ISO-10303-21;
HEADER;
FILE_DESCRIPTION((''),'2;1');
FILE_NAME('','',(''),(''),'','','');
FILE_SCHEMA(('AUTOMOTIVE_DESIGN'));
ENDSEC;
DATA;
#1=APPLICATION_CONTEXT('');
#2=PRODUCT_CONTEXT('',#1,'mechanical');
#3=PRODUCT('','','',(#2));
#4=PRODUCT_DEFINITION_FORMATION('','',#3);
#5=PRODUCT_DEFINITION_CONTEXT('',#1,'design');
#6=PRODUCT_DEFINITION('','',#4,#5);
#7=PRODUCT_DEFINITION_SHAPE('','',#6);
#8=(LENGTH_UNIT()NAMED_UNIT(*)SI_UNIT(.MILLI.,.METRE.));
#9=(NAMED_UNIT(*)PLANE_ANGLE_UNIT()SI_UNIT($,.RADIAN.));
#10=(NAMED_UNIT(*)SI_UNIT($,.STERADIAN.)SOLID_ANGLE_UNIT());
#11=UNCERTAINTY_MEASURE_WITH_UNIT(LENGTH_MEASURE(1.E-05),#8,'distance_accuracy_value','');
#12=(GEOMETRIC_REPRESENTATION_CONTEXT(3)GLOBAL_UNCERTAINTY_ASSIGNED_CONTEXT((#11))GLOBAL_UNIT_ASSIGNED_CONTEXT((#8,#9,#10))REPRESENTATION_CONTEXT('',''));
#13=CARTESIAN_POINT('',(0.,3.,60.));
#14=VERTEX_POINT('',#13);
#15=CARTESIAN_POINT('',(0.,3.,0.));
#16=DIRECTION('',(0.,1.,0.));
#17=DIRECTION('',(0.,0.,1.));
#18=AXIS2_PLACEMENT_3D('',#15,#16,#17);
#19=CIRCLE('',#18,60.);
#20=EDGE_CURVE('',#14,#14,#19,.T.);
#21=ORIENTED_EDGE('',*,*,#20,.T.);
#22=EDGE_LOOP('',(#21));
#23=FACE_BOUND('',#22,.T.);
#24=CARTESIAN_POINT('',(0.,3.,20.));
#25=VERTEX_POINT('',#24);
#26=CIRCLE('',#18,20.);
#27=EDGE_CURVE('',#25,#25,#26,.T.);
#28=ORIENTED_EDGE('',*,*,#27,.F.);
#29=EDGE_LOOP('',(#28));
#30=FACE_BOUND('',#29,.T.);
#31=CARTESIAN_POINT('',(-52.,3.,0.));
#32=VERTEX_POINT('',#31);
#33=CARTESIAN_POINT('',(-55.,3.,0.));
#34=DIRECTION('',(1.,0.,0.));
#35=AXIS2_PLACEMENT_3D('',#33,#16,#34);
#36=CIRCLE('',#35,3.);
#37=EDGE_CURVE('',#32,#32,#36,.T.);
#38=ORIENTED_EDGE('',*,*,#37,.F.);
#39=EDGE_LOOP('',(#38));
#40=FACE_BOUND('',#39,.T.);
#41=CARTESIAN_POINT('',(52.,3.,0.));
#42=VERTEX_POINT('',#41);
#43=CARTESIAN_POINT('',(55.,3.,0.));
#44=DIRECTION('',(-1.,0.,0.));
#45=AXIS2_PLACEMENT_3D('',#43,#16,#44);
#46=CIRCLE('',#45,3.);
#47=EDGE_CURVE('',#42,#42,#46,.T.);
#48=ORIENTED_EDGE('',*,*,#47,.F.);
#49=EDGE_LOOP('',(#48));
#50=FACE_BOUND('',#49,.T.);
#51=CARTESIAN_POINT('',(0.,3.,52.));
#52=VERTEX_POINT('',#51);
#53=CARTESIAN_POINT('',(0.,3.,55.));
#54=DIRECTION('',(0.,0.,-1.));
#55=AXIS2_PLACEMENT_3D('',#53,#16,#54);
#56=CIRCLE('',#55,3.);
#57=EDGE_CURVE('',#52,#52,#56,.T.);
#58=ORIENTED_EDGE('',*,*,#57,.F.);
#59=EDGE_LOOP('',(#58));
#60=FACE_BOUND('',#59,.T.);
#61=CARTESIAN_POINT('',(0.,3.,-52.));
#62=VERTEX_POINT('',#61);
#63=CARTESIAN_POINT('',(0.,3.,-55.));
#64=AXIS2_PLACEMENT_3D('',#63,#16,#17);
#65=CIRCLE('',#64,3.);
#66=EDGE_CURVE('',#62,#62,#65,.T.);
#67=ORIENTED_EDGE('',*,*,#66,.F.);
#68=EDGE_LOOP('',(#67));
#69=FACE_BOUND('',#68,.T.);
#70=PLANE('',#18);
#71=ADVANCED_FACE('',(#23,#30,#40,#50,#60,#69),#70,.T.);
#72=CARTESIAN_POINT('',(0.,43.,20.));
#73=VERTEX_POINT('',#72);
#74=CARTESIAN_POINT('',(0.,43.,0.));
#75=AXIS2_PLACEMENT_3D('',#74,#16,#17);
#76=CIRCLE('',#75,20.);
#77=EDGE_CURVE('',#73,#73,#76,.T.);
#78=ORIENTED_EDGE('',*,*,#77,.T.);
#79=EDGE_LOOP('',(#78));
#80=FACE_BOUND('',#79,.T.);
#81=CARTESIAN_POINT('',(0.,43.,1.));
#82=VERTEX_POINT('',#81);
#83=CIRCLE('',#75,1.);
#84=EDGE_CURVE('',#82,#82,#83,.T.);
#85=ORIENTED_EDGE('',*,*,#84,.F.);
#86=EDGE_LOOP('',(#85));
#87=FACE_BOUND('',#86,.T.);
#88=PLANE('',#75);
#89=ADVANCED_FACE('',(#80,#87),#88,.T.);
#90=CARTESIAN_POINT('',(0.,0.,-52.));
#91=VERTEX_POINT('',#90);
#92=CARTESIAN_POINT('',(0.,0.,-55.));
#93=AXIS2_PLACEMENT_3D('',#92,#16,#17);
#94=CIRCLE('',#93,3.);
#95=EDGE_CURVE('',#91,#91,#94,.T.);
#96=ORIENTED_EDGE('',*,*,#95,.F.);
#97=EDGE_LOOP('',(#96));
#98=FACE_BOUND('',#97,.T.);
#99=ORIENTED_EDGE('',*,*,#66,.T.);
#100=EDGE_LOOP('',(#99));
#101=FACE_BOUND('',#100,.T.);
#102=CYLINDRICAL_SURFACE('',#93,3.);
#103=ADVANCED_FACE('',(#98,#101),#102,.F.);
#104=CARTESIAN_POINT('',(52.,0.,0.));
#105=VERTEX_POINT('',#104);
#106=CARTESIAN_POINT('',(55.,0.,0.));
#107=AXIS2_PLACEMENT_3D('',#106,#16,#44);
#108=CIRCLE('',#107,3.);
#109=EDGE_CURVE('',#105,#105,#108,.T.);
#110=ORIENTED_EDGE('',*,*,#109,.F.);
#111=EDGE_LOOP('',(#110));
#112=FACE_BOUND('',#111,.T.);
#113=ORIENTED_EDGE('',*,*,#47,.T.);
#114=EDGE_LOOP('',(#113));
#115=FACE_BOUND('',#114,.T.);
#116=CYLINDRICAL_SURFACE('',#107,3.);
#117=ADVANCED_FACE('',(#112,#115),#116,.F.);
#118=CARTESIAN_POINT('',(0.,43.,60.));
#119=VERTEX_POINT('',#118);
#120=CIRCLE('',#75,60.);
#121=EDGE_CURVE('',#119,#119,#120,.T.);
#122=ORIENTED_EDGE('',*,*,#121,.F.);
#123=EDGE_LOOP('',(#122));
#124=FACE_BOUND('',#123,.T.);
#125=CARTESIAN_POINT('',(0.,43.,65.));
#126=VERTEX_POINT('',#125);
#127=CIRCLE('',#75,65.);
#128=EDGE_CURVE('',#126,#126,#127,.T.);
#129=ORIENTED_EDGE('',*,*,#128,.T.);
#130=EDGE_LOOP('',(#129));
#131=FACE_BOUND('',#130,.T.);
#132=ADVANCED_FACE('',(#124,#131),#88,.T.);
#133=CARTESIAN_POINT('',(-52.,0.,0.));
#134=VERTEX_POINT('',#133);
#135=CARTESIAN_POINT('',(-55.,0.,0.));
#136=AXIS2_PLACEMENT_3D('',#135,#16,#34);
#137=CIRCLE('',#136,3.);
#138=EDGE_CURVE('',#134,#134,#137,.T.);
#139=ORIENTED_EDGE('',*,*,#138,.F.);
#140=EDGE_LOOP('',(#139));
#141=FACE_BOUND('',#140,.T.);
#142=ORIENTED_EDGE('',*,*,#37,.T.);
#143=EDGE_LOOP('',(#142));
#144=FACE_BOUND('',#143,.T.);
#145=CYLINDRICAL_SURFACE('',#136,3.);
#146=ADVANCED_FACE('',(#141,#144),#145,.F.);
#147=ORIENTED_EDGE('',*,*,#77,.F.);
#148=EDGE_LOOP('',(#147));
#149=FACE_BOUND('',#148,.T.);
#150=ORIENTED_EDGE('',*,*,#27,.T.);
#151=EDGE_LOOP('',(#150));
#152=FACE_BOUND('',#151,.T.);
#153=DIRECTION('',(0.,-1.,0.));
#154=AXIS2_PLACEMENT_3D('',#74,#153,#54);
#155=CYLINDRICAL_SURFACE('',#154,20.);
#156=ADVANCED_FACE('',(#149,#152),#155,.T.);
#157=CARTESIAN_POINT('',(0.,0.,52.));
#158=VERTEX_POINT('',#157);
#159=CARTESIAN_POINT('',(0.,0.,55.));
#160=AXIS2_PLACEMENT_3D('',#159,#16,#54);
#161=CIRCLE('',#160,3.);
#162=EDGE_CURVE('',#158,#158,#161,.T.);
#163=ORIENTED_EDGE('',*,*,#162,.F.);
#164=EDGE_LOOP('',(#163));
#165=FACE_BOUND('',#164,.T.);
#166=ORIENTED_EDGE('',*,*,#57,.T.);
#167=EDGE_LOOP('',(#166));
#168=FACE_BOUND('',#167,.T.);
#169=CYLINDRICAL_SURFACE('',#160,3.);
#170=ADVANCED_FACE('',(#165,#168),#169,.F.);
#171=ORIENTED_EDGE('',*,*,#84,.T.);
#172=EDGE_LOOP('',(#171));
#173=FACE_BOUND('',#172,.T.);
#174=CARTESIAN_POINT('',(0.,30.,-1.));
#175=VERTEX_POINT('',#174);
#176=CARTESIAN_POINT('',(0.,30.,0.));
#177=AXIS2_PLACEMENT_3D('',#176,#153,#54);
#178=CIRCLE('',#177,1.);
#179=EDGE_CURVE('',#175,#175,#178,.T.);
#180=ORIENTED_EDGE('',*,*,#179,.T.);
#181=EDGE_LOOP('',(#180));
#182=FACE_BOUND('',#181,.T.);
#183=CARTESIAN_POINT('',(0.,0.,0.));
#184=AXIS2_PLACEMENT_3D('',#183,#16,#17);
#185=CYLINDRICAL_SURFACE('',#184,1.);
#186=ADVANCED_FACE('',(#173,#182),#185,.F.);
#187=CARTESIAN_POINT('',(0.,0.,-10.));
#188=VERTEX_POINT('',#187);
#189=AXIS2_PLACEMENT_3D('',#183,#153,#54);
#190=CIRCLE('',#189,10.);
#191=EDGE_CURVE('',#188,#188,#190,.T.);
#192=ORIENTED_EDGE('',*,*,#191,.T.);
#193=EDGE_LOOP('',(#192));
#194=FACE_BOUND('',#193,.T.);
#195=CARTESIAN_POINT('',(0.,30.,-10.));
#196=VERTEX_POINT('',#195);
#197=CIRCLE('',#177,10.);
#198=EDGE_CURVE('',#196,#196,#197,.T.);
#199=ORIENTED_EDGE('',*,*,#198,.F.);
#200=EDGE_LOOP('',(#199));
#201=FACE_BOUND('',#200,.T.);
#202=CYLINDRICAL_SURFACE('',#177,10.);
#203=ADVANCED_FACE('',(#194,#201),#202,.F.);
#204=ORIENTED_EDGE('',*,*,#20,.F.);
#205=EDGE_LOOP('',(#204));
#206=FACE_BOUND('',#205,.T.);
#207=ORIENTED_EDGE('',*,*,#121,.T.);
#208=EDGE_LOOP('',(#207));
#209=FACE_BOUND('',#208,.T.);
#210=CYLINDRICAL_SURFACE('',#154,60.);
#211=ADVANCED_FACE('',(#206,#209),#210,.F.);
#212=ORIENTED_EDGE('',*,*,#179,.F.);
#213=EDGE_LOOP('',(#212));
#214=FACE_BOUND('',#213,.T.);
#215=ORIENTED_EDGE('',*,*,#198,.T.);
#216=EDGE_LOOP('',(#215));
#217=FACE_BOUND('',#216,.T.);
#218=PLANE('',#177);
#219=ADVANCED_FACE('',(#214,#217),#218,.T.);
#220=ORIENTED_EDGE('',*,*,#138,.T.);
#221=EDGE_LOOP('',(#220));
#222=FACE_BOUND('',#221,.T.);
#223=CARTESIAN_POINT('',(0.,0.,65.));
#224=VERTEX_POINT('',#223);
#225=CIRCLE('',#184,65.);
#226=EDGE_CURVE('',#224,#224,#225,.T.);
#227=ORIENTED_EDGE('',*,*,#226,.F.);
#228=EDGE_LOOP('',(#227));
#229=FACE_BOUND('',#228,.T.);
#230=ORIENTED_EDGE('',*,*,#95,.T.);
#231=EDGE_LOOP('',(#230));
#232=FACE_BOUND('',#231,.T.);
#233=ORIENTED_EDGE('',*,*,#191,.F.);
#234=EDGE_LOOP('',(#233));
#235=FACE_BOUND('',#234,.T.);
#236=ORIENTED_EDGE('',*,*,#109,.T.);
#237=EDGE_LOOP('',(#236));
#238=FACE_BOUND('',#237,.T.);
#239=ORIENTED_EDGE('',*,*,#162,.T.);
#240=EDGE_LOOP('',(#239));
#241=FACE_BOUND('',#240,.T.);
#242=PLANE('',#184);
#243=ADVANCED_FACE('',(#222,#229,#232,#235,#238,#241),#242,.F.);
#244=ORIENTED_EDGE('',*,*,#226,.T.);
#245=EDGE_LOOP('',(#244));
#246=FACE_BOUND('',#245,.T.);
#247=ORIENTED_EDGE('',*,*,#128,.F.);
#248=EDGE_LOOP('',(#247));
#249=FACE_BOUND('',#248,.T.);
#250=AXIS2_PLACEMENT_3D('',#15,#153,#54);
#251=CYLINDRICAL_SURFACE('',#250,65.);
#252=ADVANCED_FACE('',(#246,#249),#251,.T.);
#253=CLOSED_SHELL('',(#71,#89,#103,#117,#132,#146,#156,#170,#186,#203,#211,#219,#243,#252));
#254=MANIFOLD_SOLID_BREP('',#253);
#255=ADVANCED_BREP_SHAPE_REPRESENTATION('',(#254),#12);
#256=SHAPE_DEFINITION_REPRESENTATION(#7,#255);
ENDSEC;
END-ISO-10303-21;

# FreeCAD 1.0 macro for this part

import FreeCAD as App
import Part
import Sketcher
Q = App.Units.Quantity

doc = App.newDocument("Part")
body = doc.addObject("PartDesign::Body", "Body")

sketch1 = body.newObject("Sketcher::SketchObject", "Sketch")
sketch1.AttachmentSupport = (doc.getObject("XZ_Plane"), [""])
sketch1.MapMode = "FlatFace"
sketch1.addGeometry(Part.Circle(App.Vector(0, 0, 0), App.Vector(0, 0, 1), 65), False)
sketch1.addConstraint([
    Sketcher.Constraint("Coincident", 0, 3, -1, 1),
    Sketcher.Constraint("Diameter", 0, Q("130 mm")),
])
pad1 = body.newObject("PartDesign::Pad", "Pad")
pad1.Profile = sketch1
pad1.Length = 3
pad1.Reversed = True

sketch2 = body.newObject("Sketcher::SketchObject", "Sketch001")
sketch2.AttachmentSupport = (doc.getObject("XZ_Plane"), [""])
sketch2.MapMode = "FlatFace"
sketch2.AttachmentOffset = App.Placement(App.Vector(0, 0, -3), App.Rotation())
sketch2.addGeometry(Part.Circle(App.Vector(0, -55, 0), App.Vector(0, 0, 1), 3), False)
sketch2.addConstraint([
    Sketcher.Constraint("PointOnObject", 0, 3, -2),
    Sketcher.Constraint("Diameter", 0, Q("6 mm")),
    Sketcher.Constraint("DistanceY", 0, 3, -1, 1, Q("55 mm")),
])
pocket1 = body.newObject("PartDesign::Pocket", "Pocket")
pocket1.Profile = sketch2
pocket1.Type = "ThroughAll"
pocket1.Reversed = True
doc.recompute()

polarpattern = body.newObject("PartDesign::PolarPattern", "PolarPattern")
polarpattern.Originals = [pocket1]
polarpattern.Axis = (doc.getObject("Y_Axis"), [""])
polarpattern.Angle = 360
polarpattern.Occurrences = 4
body.Tip = polarpattern

sketch3 = body.newObject("Sketcher::SketchObject", "Sketch002")
sketch3.AttachmentSupport = (doc.getObject("XZ_Plane"), [""])
sketch3.MapMode = "FlatFace"
sketch3.AttachmentOffset = App.Placement(App.Vector(0, 0, -3), App.Rotation())
sketch3.addGeometry([
    Part.Circle(App.Vector(0, 0, 0), App.Vector(0, 0, 1), 65),
    Part.Circle(App.Vector(0, 0, 0), App.Vector(0, 0, 1), 60),
], False)
sketch3.addConstraint([
    Sketcher.Constraint("Coincident", 0, 3, -1, 1),
    Sketcher.Constraint("Coincident", 1, 3, -1, 1),
    Sketcher.Constraint("Diameter", 0, Q("130 mm")),
    Sketcher.Constraint("Diameter", 1, Q("120 mm")),
])
pad2 = body.newObject("PartDesign::Pad", "Pad001")
pad2.Profile = sketch3
pad2.Length = 40
pad2.Reversed = True

sketch4 = body.newObject("Sketcher::SketchObject", "Sketch003")
sketch4.AttachmentSupport = (doc.getObject("XZ_Plane"), [""])
sketch4.MapMode = "FlatFace"
sketch4.AttachmentOffset = App.Placement(App.Vector(0, 0, -3), App.Rotation())
sketch4.addGeometry(Part.Circle(App.Vector(0, 0, 0), App.Vector(0, 0, 1), 20), False)
sketch4.addConstraint([
    Sketcher.Constraint("Coincident", 0, 3, -1, 1),
    Sketcher.Constraint("Diameter", 0, Q("40 mm")),
])
pad3 = body.newObject("PartDesign::Pad", "Pad002")
pad3.Profile = sketch4
pad3.Length = 40
pad3.Reversed = True

sketch5 = body.newObject("Sketcher::SketchObject", "Sketch004")
sketch5.AttachmentSupport = (doc.getObject("XZ_Plane"), [""])
sketch5.MapMode = "FlatFace"
sketch5.addGeometry(Part.Circle(App.Vector(0, 0, 0), App.Vector(0, 0, 1), 10), False)
sketch5.addConstraint([
    Sketcher.Constraint("Coincident", 0, 3, -1, 1),
    Sketcher.Constraint("Diameter", 0, Q("20 mm")),
])
pocket2 = body.newObject("PartDesign::Pocket", "Pocket001")
pocket2.Profile = sketch5
pocket2.Length = 30

sketch6 = body.newObject("Sketcher::SketchObject", "Sketch005")
sketch6.AttachmentSupport = (doc.getObject("XZ_Plane"), [""])
sketch6.MapMode = "FlatFace"
sketch6.AttachmentOffset = App.Placement(App.Vector(0, 0, -43), App.Rotation())
sketch6.addGeometry(Part.Circle(App.Vector(0, 0, 0), App.Vector(0, 0, 1), 1), False)
sketch6.addConstraint([
    Sketcher.Constraint("Coincident", 0, 3, -1, 1),
    Sketcher.Constraint("Diameter", 0, Q("2 mm")),
])
pocket3 = body.newObject("PartDesign::Pocket", "Pocket002")
pocket3.Profile = sketch6
pocket3.Type = "ThroughAll"
pocket3.Reversed = True

doc.recompute()
